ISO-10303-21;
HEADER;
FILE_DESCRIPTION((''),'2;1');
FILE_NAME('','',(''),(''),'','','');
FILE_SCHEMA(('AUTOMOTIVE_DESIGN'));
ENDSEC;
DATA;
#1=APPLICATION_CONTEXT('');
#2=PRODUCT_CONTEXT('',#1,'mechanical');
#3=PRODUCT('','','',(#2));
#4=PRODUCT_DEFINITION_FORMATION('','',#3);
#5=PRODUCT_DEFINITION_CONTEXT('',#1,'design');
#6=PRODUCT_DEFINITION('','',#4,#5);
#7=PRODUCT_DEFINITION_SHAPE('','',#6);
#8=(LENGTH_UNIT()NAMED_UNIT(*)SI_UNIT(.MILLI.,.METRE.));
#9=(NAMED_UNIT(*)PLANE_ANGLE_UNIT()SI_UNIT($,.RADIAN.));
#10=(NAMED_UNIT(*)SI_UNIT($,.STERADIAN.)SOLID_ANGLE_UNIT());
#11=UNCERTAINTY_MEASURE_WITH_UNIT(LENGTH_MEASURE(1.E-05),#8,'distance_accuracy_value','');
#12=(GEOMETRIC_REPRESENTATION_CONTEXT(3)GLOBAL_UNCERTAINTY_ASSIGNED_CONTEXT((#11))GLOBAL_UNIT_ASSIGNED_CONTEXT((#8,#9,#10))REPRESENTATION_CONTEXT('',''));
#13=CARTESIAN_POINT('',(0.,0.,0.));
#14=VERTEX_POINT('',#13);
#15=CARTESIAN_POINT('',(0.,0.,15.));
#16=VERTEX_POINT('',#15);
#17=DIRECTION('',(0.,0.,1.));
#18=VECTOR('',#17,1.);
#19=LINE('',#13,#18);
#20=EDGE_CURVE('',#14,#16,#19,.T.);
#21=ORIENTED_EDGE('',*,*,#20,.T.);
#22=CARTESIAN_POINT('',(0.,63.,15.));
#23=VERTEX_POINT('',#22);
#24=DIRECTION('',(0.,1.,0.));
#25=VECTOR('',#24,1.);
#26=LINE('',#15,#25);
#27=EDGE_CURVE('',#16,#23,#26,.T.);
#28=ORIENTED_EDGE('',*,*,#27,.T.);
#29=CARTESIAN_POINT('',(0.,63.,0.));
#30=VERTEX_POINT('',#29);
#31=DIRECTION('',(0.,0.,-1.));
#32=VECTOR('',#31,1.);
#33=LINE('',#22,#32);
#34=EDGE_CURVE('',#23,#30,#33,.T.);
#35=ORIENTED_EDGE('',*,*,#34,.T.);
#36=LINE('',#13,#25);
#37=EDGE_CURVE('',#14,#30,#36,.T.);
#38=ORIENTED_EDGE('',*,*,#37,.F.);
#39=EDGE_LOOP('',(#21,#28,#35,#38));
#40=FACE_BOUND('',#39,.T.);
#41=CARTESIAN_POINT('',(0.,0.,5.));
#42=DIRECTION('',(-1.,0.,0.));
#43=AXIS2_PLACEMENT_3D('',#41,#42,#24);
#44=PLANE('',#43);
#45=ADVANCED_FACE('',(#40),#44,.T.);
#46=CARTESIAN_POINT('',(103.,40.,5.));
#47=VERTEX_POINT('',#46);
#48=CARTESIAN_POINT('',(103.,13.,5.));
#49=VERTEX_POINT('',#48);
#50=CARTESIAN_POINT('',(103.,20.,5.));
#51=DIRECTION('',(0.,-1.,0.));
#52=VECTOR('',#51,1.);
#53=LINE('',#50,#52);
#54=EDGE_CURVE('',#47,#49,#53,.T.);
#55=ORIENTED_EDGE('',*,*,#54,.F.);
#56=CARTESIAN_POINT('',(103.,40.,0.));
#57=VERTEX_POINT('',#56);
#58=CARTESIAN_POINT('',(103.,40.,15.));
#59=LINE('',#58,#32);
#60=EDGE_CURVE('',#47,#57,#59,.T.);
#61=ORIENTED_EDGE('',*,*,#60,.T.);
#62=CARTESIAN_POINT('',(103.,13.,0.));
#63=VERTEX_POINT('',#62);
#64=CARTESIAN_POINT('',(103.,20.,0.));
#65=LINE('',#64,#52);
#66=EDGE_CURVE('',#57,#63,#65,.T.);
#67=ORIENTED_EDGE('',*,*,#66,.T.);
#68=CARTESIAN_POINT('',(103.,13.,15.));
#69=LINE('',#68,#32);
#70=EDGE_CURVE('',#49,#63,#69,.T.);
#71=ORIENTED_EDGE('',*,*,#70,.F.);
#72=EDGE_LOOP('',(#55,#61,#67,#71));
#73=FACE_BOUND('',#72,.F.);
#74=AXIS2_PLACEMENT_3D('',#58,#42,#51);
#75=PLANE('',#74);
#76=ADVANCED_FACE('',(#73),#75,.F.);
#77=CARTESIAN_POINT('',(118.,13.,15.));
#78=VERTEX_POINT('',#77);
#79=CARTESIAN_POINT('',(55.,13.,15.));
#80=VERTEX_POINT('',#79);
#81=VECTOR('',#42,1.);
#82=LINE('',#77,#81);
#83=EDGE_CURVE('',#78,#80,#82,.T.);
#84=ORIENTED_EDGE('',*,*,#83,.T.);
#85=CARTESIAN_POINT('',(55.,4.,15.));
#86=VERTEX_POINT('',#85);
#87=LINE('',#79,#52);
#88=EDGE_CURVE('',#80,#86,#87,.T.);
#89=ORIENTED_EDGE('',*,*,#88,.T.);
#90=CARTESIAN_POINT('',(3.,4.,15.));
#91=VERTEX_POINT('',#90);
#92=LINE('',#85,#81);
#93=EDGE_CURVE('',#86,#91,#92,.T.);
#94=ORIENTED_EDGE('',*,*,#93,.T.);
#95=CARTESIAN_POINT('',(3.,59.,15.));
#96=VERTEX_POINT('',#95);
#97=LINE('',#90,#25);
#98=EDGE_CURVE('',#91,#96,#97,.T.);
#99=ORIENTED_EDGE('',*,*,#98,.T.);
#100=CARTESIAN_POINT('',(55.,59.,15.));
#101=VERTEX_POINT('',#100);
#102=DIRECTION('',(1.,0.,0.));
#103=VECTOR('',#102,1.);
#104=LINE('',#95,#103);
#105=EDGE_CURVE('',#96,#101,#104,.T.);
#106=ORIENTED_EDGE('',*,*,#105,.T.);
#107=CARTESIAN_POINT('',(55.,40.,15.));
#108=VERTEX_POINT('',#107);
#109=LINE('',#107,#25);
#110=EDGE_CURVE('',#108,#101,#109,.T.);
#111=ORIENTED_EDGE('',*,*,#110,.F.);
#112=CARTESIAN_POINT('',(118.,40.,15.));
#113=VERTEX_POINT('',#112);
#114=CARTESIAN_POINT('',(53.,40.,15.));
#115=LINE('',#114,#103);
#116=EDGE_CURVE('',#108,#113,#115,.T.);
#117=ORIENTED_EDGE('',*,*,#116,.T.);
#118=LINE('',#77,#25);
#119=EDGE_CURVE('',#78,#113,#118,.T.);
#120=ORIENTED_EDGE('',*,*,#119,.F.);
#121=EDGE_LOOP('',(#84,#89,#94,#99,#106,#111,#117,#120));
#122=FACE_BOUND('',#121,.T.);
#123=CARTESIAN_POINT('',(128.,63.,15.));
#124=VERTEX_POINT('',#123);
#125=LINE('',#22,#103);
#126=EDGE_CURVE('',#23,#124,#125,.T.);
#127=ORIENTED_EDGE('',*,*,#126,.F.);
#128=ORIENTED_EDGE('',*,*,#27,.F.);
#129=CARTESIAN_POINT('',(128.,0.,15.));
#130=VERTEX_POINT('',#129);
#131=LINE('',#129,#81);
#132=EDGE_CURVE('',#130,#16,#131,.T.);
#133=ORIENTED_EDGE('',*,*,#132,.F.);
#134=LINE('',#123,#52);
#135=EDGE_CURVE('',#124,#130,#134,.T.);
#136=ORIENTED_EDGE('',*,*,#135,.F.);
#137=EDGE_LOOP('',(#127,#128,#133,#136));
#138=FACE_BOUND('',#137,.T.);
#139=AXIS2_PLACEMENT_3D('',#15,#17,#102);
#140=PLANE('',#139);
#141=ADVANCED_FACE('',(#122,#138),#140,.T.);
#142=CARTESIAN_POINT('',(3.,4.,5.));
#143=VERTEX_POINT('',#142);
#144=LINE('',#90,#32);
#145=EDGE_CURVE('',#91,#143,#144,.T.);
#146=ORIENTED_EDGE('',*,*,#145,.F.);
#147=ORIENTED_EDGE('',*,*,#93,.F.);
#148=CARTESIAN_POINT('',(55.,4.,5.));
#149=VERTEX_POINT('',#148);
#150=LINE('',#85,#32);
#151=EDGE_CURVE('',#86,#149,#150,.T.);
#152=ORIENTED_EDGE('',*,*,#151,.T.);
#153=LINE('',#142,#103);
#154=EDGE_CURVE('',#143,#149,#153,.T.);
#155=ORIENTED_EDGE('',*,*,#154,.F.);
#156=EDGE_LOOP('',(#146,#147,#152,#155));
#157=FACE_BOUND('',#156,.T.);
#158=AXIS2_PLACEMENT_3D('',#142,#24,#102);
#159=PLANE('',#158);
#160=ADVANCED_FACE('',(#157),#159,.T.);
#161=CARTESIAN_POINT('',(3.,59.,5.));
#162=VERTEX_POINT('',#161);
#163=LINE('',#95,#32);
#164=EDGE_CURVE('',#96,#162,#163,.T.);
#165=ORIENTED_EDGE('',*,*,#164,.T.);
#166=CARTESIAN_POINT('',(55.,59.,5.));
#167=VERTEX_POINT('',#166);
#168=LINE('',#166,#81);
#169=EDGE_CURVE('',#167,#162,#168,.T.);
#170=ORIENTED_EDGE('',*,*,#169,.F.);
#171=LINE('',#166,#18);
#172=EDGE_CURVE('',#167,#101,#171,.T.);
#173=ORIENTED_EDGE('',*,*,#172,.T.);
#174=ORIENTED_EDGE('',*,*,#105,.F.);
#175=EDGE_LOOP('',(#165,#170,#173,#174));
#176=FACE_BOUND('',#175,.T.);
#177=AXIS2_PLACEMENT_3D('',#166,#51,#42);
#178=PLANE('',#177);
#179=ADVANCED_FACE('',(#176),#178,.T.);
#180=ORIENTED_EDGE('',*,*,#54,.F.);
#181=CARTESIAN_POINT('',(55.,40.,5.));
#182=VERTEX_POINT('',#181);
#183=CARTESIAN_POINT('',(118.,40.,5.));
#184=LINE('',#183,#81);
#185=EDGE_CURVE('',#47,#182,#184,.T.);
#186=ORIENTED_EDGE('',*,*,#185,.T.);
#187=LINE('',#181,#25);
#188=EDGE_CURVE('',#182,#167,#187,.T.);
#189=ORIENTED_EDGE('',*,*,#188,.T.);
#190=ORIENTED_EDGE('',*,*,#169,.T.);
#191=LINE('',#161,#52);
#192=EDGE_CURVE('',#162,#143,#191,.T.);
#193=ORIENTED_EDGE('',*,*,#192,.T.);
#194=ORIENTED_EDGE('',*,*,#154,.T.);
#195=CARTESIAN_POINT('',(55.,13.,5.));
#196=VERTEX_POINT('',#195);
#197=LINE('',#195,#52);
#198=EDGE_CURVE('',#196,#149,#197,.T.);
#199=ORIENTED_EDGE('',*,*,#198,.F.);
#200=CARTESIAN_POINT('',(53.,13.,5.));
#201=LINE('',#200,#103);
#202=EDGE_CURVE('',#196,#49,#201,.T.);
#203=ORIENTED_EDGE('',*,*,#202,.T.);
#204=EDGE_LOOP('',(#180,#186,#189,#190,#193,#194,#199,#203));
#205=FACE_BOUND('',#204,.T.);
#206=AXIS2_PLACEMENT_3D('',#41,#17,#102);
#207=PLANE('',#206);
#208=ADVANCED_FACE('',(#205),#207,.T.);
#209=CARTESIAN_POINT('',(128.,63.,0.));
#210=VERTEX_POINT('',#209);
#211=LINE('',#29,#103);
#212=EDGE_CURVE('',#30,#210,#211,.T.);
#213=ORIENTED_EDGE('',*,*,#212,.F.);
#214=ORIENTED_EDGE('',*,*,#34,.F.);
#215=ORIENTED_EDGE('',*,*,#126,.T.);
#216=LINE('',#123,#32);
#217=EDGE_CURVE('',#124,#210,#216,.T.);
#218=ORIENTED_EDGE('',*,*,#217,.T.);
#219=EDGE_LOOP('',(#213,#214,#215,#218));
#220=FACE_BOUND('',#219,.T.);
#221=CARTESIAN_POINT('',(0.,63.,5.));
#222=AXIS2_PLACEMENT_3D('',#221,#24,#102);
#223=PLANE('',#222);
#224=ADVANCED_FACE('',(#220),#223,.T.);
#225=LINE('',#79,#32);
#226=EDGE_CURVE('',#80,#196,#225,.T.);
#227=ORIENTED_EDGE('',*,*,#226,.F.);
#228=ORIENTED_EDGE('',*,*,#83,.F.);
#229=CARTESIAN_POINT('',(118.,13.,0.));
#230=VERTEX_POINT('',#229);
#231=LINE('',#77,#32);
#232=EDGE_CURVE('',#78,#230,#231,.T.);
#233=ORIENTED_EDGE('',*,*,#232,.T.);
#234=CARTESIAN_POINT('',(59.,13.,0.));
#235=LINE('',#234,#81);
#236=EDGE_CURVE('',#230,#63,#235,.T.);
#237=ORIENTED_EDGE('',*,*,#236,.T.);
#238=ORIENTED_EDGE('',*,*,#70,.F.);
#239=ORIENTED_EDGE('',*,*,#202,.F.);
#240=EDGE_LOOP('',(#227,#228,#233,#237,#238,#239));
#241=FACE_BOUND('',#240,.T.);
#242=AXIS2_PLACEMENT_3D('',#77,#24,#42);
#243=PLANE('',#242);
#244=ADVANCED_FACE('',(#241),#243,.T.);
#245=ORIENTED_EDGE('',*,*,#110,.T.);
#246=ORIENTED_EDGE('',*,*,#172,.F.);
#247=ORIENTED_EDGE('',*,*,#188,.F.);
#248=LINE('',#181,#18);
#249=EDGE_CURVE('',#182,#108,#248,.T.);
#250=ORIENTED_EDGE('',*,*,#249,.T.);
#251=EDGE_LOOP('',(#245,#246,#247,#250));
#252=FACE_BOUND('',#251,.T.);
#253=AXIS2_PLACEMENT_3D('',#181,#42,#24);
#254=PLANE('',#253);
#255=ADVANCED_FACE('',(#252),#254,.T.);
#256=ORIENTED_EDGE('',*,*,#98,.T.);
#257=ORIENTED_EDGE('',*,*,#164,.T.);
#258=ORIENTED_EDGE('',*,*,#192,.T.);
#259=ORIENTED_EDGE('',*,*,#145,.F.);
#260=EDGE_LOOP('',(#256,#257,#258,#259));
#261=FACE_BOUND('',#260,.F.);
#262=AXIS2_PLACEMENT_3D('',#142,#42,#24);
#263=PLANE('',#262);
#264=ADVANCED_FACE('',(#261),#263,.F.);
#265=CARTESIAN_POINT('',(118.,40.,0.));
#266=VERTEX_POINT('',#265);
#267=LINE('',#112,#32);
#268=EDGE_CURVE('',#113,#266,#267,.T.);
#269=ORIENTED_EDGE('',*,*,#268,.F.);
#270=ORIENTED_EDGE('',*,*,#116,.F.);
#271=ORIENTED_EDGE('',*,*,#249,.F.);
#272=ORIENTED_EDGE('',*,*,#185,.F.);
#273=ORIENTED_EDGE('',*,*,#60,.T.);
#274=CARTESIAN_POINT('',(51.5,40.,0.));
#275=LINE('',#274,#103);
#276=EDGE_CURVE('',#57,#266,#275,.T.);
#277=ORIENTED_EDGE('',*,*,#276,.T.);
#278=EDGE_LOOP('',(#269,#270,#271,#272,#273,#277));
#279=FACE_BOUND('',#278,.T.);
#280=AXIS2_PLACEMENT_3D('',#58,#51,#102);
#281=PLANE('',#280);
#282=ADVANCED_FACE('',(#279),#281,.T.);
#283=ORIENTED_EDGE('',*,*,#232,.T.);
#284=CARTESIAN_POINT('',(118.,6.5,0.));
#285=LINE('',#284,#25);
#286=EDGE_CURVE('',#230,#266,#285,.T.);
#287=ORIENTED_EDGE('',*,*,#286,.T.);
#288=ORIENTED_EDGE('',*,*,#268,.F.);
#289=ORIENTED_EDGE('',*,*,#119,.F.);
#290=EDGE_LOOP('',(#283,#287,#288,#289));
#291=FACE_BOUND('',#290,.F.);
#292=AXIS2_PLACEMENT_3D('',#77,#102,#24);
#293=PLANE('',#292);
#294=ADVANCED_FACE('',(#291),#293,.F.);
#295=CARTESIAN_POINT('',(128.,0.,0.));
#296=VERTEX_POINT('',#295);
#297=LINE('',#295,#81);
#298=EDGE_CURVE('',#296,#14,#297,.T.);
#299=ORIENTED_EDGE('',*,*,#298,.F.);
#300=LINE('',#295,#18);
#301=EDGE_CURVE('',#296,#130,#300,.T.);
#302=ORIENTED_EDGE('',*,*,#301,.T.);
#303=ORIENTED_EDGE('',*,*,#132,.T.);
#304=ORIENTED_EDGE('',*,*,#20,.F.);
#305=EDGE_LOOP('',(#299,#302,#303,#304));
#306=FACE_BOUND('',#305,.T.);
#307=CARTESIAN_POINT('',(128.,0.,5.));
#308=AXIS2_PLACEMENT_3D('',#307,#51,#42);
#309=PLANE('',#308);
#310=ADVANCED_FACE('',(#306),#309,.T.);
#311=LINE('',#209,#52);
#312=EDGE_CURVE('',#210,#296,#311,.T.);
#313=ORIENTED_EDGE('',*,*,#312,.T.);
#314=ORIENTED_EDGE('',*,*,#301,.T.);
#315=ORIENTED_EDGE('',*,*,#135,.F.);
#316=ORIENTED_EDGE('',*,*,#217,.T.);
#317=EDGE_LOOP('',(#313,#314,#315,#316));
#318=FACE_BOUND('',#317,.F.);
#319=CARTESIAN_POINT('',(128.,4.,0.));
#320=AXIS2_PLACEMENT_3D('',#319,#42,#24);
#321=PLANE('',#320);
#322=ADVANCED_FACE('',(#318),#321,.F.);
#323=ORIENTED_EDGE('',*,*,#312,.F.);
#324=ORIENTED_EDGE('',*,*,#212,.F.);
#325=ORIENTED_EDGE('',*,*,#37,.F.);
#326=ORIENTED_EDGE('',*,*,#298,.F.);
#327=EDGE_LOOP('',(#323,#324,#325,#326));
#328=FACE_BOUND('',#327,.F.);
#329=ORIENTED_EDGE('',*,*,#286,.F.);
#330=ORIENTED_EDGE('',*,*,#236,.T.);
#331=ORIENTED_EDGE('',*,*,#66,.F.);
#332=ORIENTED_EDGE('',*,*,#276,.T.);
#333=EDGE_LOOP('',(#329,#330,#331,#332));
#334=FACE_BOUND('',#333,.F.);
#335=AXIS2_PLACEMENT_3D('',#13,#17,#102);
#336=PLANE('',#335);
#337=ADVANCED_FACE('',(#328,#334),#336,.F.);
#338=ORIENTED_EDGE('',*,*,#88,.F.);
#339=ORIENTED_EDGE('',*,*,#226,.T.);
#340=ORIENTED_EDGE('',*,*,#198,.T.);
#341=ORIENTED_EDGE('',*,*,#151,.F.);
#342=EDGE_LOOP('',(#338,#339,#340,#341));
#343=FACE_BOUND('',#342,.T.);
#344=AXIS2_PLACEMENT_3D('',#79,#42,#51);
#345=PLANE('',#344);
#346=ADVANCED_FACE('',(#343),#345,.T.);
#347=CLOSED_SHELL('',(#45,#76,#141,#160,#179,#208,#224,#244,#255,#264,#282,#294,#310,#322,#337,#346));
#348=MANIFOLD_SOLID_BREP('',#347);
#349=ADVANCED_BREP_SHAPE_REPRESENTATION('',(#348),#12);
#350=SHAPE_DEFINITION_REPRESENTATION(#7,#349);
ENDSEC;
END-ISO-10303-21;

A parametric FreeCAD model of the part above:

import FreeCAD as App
import Part
import Sketcher
Q = App.Units.Quantity


def add_polygon(sketch, points):
    """Adds a closed chain of lines whose ends are joined by coincident constraints."""
    first, n = sketch.GeometryCount, len(points)
    for a, b in zip(points, points[1:] + points[:1]):
        sketch.addGeometry(Part.LineSegment(App.Vector(*a, 0), App.Vector(*b, 0)), False)
    for i in range(n):
        sketch.addConstraint(Sketcher.Constraint("Coincident", first + i, 2, first + (i + 1) % n, 1))

doc = App.newDocument("Part")
body = doc.addObject("PartDesign::Body", "Body")

sketch1 = body.newObject("Sketcher::SketchObject", "Sketch")
sketch1.AttachmentSupport = (doc.getObject("XY_Plane"), [""])
sketch1.MapMode = "FlatFace"
add_polygon(sketch1, [(3, 59), (3, 4), (128, 4), (128, 59)])
sketch1.addConstraint(Sketcher.Constraint("Vertical", 0))
sketch1.addConstraint(Sketcher.Constraint("Horizontal", 1))
sketch1.addConstraint(Sketcher.Constraint("Vertical", 2))
sketch1.addConstraint(Sketcher.Constraint("Horizontal", 3))
sketch1.addConstraint(Sketcher.Constraint("DistanceX", 1, 1, 1, 2, Q("125 mm")))
sketch1.addConstraint(Sketcher.Constraint("DistanceY", 0, 2, 0, 1, Q("55 mm")))
sketch1.addConstraint(Sketcher.Constraint("DistanceX", -1, 1, 0, 2, Q("3 mm")))
sketch1.addConstraint(Sketcher.Constraint("DistanceY", -1, 1, 0, 2, Q("4 mm")))
pad1 = body.newObject("PartDesign::Pad", "Pad")
pad1.Profile = sketch1
pad1.Length = 5

sketch2 = body.newObject("Sketcher::SketchObject", "Sketch001")
sketch2.AttachmentSupport = (doc.getObject("XY_Plane"), [""])
sketch2.MapMode = "FlatFace"
sketch2.AttachmentOffset = App.Placement(App.Vector(0, 0, 5), App.Rotation())
add_polygon(sketch2, [(53, 4), (128, 4), (128, 59), (53, 59)])
sketch2.addConstraint(Sketcher.Constraint("Horizontal", 0))
sketch2.addConstraint(Sketcher.Constraint("Vertical", 1))
sketch2.addConstraint(Sketcher.Constraint("Horizontal", 2))
sketch2.addConstraint(Sketcher.Constraint("Vertical", 3))
sketch2.addConstraint(Sketcher.Constraint("DistanceX", 0, 1, 0, 2, Q("75 mm")))
sketch2.addConstraint(Sketcher.Constraint("DistanceY", 1, 1, 1, 2, Q("55 mm")))
sketch2.addConstraint(Sketcher.Constraint("DistanceX", -1, 1, 0, 2, Q("128 mm")))
sketch2.addConstraint(Sketcher.Constraint("DistanceY", -1, 1, 0, 2, Q("4 mm")))
pad2 = body.newObject("PartDesign::Pad", "Pad001")
pad2.Profile = sketch2
pad2.Length = 10

sketch3 = body.newObject("Sketcher::SketchObject", "Sketch002")
sketch3.AttachmentSupport = (doc.getObject("XY_Plane"), [""])
sketch3.MapMode = "FlatFace"
sketch3.AttachmentOffset = App.Placement(App.Vector(0, 0, 15), App.Rotation())
add_polygon(sketch3, [(118, 40), (53, 40), (53, 13), (118, 13)])
sketch3.addConstraint(Sketcher.Constraint("Horizontal", 0))
sketch3.addConstraint(Sketcher.Constraint("Vertical", 1))
sketch3.addConstraint(Sketcher.Constraint("Horizontal", 2))
sketch3.addConstraint(Sketcher.Constraint("Vertical", 3))
sketch3.addConstraint(Sketcher.Constraint("DistanceX", 0, 2, 0, 1, Q("65 mm")))
sketch3.addConstraint(Sketcher.Constraint("DistanceY", 1, 2, 1, 1, Q("27 mm")))
sketch3.addConstraint(Sketcher.Constraint("DistanceX", -1, 1, 0, 2, Q("53 mm")))
sketch3.addConstraint(Sketcher.Constraint("DistanceY", -1, 1, 0, 2, Q("40 mm")))
pocket1 = body.newObject("PartDesign::Pocket", "Pocket")
pocket1.Profile = sketch3
pocket1.Length = 10

sketch4 = body.newObject("Sketcher::SketchObject", "Sketch003")
sketch4.AttachmentSupport = (doc.getObject("XY_Plane"), [""])
sketch4.MapMode = "FlatFace"
sketch4.AttachmentOffset = App.Placement(App.Vector(0, 0, 15), App.Rotation())
add_polygon(sketch4, [(118, 40), (103, 40), (103, 13), (118, 13)])
sketch4.addConstraint(Sketcher.Constraint("Horizontal", 0))
sketch4.addConstraint(Sketcher.Constraint("Vertical", 1))
sketch4.addConstraint(Sketcher.Constraint("Horizontal", 2))
sketch4.addConstraint(Sketcher.Constraint("Vertical", 3))
sketch4.addConstraint(Sketcher.Constraint("DistanceX", 0, 2, 0, 1, Q("15 mm")))
sketch4.addConstraint(Sketcher.Constraint("DistanceY", 1, 2, 1, 1, Q("27 mm")))
sketch4.addConstraint(Sketcher.Constraint("DistanceX", -1, 1, 0, 2, Q("103 mm")))
sketch4.addConstraint(Sketcher.Constraint("DistanceY", -1, 1, 0, 2, Q("40 mm")))
pocket2 = body.newObject("PartDesign::Pocket", "Pocket001")
pocket2.Profile = sketch4
pocket2.Length = 20

sketch5 = body.newObject("Sketcher::SketchObject", "Sketch004")
sketch5.AttachmentSupport = (doc.getObject("XY_Plane"), [""])
sketch5.MapMode = "FlatFace"
sketch5.AttachmentOffset = App.Placement(App.Vector(0, 0, 5), App.Rotation())
add_polygon(sketch5, [(0, 63), (0, 0), (128, 0), (128, 4), (3, 4), (3, 59), (128, 59), (128, 63)])
sketch5.addConstraint(Sketcher.Constraint("Vertical", 0))
sketch5.addConstraint(Sketcher.Constraint("Horizontal", 1))
sketch5.addConstraint(Sketcher.Constraint("Vertical", 2))
sketch5.addConstraint(Sketcher.Constraint("Horizontal", 3))
sketch5.addConstraint(Sketcher.Constraint("Vertical", 4))
sketch5.addConstraint(Sketcher.Constraint("Horizontal", 5))
sketch5.addConstraint(Sketcher.Constraint("Vertical", 6))
sketch5.addConstraint(Sketcher.Constraint("Horizontal", 7))
sketch5.addConstraint(Sketcher.Constraint("Coincident", 0, 2, -1, 1))
sketch5.addConstraint(Sketcher.Constraint("Vertical", 2, 2, 5, 2))
sketch5.addConstraint(Sketcher.Constraint("Equal", 2, 6))
sketch5.addConstraint(Sketcher.Constraint("DistanceX", 1, 1, 1, 2, Q("128 mm")))
sketch5.addConstraint(Sketcher.Constraint("DistanceY", 0, 2, 0, 1, Q("63 mm")))
sketch5.addConstraint(Sketcher.Constraint("DistanceX", 3, 2, 3, 1, Q("125 mm")))
sketch5.addConstraint(Sketcher.Constraint("DistanceY", 2, 1, 2, 2, Q("4 mm")))
pad3 = body.newObject("PartDesign::Pad", "Pad002")
pad3.Profile = sketch5
pad3.Type = "TwoLengths"
pad3.Length = 10
pad3.Length2 = 5

sketch6 = body.newObject("Sketcher::SketchObject", "Sketch005")
sketch6.AttachmentSupport = (doc.getObject("XY_Plane"), [""])
sketch6.MapMode = "FlatFace"
sketch6.AttachmentOffset = App.Placement(App.Vector(0, 0, 5), App.Rotation())
add_polygon(sketch6, [(53, 59), (53, 40), (55, 40), (55, 59)])
sketch6.addConstraint(Sketcher.Constraint("Vertical", 0))
sketch6.addConstraint(Sketcher.Constraint("Horizontal", 1))
sketch6.addConstraint(Sketcher.Constraint("Vertical", 2))
sketch6.addConstraint(Sketcher.Constraint("Horizontal", 3))
sketch6.addConstraint(Sketcher.Constraint("DistanceX", 1, 1, 1, 2, Q("2 mm")))
sketch6.addConstraint(Sketcher.Constraint("DistanceY", 0, 2, 0, 1, Q("19 mm")))
sketch6.addConstraint(Sketcher.Constraint("DistanceX", -1, 1, 0, 2, Q("53 mm")))
sketch6.addConstraint(Sketcher.Constraint("DistanceY", -1, 1, 0, 2, Q("40 mm")))
pocket3 = body.newObject("PartDesign::Pocket", "Pocket002")
pocket3.Profile = sketch6
pocket3.Length = 10
pocket3.Reversed = True

sketch7 = body.newObject("Sketcher::SketchObject", "Sketch006")
sketch7.AttachmentSupport = (doc.getObject("XY_Plane"), [""])
sketch7.MapMode = "FlatFace"
sketch7.AttachmentOffset = App.Placement(App.Vector(0, 0, 15), App.Rotation())
add_polygon(sketch7, [(53, 13), (53, 4), (55, 4), (55, 13)])
sketch7.addConstraint(Sketcher.Constraint("Vertical", 0))
sketch7.addConstraint(Sketcher.Constraint("Horizontal", 1))
sketch7.addConstraint(Sketcher.Constraint("Vertical", 2))
sketch7.addConstraint(Sketcher.Constraint("Horizontal", 3))
sketch7.addConstraint(Sketcher.Constraint("DistanceX", 1, 1, 1, 2, Q("2 mm")))
sketch7.addConstraint(Sketcher.Constraint("DistanceY", 0, 2, 0, 1, Q("9 mm")))
sketch7.addConstraint(Sketcher.Constraint("DistanceX", -1, 1, 0, 2, Q("53 mm")))
sketch7.addConstraint(Sketcher.Constraint("DistanceY", -1, 1, 0, 2, Q("4 mm")))
pocket4 = body.newObject("PartDesign::Pocket", "Pocket003")
pocket4.Profile = sketch7
pocket4.Length = 10

doc.recompute()
